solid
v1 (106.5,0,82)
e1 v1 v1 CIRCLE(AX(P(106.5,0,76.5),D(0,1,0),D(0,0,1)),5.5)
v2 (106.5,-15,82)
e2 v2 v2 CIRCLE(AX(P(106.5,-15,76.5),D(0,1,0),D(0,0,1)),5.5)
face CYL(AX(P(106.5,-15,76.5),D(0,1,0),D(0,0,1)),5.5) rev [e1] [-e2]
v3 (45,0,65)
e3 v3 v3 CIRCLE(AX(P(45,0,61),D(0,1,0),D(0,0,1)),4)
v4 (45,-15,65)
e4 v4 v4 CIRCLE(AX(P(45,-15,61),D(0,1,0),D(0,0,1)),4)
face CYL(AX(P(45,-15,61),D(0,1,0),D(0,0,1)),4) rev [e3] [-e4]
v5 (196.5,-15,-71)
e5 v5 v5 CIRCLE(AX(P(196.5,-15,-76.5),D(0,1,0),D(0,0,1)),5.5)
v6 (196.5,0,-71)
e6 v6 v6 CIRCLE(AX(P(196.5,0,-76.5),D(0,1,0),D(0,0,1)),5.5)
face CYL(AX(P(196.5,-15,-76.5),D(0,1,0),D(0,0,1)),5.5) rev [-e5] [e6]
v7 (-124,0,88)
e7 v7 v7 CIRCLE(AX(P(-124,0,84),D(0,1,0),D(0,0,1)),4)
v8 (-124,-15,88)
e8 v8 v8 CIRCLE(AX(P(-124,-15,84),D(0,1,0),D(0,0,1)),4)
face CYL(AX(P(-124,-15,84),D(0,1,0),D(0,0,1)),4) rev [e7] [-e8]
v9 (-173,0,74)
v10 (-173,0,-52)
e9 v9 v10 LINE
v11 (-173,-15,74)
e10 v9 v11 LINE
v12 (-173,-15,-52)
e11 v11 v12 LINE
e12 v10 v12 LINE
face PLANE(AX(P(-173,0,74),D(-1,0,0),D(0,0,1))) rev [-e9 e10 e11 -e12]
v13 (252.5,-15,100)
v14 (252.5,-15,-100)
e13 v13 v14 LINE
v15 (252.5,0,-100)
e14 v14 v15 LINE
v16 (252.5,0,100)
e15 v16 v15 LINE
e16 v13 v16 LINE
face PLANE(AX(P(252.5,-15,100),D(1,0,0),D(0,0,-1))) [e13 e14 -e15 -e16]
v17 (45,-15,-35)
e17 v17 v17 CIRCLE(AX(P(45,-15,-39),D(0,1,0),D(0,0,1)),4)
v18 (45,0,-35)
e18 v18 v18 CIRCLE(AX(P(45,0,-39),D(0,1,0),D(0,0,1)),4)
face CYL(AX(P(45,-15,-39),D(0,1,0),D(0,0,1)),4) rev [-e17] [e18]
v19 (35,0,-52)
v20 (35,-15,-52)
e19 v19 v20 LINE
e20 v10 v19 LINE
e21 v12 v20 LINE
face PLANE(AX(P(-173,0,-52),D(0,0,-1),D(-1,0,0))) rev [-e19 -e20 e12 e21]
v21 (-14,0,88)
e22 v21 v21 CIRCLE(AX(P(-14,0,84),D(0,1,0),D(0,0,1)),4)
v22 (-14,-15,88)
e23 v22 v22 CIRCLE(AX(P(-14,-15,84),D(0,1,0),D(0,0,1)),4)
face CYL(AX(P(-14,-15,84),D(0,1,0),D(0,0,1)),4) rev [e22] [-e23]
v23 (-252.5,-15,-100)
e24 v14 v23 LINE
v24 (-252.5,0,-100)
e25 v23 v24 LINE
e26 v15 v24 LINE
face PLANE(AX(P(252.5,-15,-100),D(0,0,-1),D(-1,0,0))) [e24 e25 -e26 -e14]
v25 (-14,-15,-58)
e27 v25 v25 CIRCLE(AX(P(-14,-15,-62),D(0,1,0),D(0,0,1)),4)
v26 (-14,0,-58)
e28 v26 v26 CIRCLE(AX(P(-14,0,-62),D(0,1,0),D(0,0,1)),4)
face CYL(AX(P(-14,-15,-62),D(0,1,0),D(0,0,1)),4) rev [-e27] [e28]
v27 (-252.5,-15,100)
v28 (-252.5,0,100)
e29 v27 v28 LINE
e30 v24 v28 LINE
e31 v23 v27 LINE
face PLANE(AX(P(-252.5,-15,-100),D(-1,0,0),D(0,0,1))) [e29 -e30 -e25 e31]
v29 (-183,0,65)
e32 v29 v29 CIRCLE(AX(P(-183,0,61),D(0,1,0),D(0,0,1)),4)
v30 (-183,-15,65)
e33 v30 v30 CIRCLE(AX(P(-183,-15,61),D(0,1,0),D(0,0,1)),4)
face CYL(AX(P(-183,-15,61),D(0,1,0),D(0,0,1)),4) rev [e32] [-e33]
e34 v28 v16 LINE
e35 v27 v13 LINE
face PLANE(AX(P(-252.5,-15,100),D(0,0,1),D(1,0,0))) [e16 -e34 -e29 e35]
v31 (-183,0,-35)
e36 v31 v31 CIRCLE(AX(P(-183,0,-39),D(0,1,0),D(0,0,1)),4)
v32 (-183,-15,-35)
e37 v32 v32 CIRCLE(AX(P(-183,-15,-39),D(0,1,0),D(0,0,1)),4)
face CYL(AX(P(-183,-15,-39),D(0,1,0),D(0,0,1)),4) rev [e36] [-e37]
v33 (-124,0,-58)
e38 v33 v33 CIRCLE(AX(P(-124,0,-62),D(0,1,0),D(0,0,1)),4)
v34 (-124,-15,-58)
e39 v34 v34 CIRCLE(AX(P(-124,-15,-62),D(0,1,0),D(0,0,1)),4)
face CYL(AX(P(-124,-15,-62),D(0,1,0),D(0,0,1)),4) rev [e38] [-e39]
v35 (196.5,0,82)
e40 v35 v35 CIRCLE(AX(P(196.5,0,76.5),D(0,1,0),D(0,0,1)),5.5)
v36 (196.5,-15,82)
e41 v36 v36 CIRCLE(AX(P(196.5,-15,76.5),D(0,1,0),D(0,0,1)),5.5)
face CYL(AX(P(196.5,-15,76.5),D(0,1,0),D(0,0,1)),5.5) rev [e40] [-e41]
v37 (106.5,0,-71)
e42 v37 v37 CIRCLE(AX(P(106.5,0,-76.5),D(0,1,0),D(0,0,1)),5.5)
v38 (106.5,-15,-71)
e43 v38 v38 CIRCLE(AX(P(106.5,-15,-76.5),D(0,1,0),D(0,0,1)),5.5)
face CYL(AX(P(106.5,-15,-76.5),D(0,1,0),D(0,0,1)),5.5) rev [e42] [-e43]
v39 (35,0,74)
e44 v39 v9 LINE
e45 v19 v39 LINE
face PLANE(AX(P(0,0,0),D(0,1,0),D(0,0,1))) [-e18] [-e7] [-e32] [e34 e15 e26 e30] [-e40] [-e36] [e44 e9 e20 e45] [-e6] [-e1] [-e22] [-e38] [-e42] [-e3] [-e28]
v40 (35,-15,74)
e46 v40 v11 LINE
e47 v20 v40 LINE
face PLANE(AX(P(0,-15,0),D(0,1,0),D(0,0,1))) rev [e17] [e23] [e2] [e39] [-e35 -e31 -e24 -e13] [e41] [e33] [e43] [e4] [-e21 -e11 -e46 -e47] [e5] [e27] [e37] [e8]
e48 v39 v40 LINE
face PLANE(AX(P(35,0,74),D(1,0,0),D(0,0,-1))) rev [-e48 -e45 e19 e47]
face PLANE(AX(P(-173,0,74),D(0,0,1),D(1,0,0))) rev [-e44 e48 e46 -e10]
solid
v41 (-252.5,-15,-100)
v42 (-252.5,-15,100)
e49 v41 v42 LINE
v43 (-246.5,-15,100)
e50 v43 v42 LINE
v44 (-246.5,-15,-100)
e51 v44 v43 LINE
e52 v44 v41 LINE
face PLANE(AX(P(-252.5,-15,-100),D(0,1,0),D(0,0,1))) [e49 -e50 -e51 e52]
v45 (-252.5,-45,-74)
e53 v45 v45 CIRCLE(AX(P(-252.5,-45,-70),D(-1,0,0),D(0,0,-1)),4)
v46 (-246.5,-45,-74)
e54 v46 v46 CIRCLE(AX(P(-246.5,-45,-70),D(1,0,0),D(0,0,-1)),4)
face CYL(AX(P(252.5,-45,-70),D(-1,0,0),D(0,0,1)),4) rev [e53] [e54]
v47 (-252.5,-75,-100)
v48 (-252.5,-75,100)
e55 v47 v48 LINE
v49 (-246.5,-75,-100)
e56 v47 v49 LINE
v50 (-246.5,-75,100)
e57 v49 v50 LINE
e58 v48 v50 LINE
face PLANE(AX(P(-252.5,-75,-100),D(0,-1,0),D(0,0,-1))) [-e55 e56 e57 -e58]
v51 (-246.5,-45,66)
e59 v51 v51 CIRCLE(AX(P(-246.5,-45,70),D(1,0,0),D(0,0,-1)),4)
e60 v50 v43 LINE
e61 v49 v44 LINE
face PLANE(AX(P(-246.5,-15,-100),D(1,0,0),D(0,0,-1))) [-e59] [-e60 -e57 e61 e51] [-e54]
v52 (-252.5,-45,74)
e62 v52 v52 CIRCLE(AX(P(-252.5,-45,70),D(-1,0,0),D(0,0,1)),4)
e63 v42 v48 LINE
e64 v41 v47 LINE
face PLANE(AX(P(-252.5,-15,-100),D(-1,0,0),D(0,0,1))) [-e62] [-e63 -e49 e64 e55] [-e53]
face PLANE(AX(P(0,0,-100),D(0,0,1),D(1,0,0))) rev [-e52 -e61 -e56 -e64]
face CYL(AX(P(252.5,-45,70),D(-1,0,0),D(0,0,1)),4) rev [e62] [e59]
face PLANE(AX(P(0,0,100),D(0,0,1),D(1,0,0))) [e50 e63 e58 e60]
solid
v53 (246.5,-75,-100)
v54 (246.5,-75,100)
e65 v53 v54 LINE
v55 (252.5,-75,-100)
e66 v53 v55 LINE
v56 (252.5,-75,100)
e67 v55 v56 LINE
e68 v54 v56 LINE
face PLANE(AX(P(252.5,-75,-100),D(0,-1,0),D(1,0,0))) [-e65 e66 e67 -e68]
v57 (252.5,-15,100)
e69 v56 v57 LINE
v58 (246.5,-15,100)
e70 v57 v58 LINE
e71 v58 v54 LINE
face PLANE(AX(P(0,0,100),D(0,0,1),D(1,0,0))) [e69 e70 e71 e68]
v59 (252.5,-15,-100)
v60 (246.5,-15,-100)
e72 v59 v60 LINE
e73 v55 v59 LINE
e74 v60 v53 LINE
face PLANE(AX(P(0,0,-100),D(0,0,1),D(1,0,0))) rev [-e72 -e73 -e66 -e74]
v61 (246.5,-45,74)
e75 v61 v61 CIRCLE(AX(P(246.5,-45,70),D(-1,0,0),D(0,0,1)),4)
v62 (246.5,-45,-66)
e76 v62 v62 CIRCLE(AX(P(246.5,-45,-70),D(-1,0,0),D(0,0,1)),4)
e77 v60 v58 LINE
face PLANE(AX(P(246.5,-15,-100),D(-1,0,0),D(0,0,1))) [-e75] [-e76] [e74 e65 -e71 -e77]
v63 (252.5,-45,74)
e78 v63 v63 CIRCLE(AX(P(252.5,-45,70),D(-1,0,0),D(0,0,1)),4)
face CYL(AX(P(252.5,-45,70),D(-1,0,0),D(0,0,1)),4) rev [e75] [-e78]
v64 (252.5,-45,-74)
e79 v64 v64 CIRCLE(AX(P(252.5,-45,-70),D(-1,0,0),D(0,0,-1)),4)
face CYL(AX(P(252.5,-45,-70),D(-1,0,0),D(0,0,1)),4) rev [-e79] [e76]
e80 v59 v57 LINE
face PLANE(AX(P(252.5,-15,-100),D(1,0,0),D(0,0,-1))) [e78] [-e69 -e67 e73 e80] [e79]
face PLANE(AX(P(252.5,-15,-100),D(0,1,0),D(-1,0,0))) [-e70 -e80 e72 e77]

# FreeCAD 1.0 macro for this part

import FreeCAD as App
import Part
import Sketcher
from FreeCAD import Vector
Q = App.Units.Quantity

doc = App.newDocument("Part")
body = doc.addObject("PartDesign::Body", "Body")

sketch1 = body.newObject("Sketcher::SketchObject", "Sketch")
sketch1.AttachmentSupport = (doc.getObject("XZ_Plane"), [""])
sketch1.MapMode = "FlatFace"
sketch1.addGeometry(Part.LineSegment(Vector(-252.5, -100, 0), Vector(-252.5, 100, 0)), False)
sketch1.addGeometry(Part.LineSegment(Vector(-252.5, 100, 0), Vector(252.5, 100, 0)), False)
sketch1.addGeometry(Part.LineSegment(Vector(252.5, 100, 0), Vector(252.5, -100, 0)), False)
sketch1.addGeometry(Part.LineSegment(Vector(252.5, -100, 0), Vector(-252.5, -100, 0)), False)
sketch1.addGeometry(Part.Circle(Vector(-124, 84, 0), Vector(0, 0, 1), 4), False)
sketch1.addGeometry(Part.Circle(Vector(-183, 61, 0), Vector(0, 0, 1), 4), False)
sketch1.addGeometry(Part.Circle(Vector(-14, 84, 0), Vector(0, 0, 1), 4), False)
sketch1.addGeometry(Part.Circle(Vector(45, 61, 0), Vector(0, 0, 1), 4), False)
sketch1.addGeometry(Part.Circle(Vector(106.5, 76.5, 0), Vector(0, 0, 1), 5.5), False)
sketch1.addGeometry(Part.Circle(Vector(196.5, 76.5, 0), Vector(0, 0, 1), 5.5), False)
sketch1.addGeometry(Part.Circle(Vector(-183, -39, 0), Vector(0, 0, 1), 4), False)
sketch1.addGeometry(Part.Circle(Vector(-124, -62, 0), Vector(0, 0, 1), 4), False)
sketch1.addGeometry(Part.Circle(Vector(-14, -62, 0), Vector(0, 0, 1), 4), False)
sketch1.addGeometry(Part.Circle(Vector(45, -39, 0), Vector(0, 0, 1), 4), False)
sketch1.addGeometry(Part.Circle(Vector(106.5, -76.5, 0), Vector(0, 0, 1), 5.5), False)
sketch1.addGeometry(Part.Circle(Vector(196.5, -76.5, 0), Vector(0, 0, 1), 5.5), False)
sketch1.addConstraint(Sketcher.Constraint("Coincident", 0, 2, 1, 1))
sketch1.addConstraint(Sketcher.Constraint("Coincident", 1, 2, 2, 1))
sketch1.addConstraint(Sketcher.Constraint("Coincident", 2, 2, 3, 1))
sketch1.addConstraint(Sketcher.Constraint("Coincident", 3, 2, 0, 1))
sketch1.addConstraint(Sketcher.Constraint("Vertical", 0))
sketch1.addConstraint(Sketcher.Constraint("Horizontal", 1))
sketch1.addConstraint(Sketcher.Constraint("Vertical", 2))
sketch1.addConstraint(Sketcher.Constraint("Horizontal", 3))
sketch1.addConstraint(Sketcher.Constraint("Equal", 4, 5))
sketch1.addConstraint(Sketcher.Constraint("Equal", 5, 6))
sketch1.addConstraint(Sketcher.Constraint("Equal", 6, 7))
sketch1.addConstraint(Sketcher.Constraint("Equal", 8, 9))
sketch1.addConstraint(Sketcher.Constraint("Equal", 7, 10))
sketch1.addConstraint(Sketcher.Constraint("Equal", 10, 11))
sketch1.addConstraint(Sketcher.Constraint("Equal", 11, 12))
sketch1.addConstraint(Sketcher.Constraint("Equal", 12, 13))
sketch1.addConstraint(Sketcher.Constraint("Equal", 9, 14))
sketch1.addConstraint(Sketcher.Constraint("Equal", 14, 15))
sketch1.addConstraint(Sketcher.Constraint("Symmetric", 0, 2, 2, 2, -1, 1))
sketch1.addConstraint(Sketcher.Constraint("Symmetric", 8, 3, 14, 3, -1))
sketch1.addConstraint(Sketcher.Constraint("Symmetric", 9, 3, 15, 3, -1))
sketch1.addConstraint(Sketcher.Constraint("Horizontal", 4, 3, 6, 3))
sketch1.addConstraint(Sketcher.Constraint("Horizontal", 5, 3, 7, 3))
sketch1.addConstraint(Sketcher.Constraint("Horizontal", 8, 3, 9, 3))
sketch1.addConstraint(Sketcher.Constraint("Horizontal", 11, 3, 12, 3))
sketch1.addConstraint(Sketcher.Constraint("Horizontal", 10, 3, 13, 3))
sketch1.addConstraint(Sketcher.Constraint("Vertical", 5, 3, 10, 3))
sketch1.addConstraint(Sketcher.Constraint("Vertical", 4, 3, 11, 3))
sketch1.addConstraint(Sketcher.Constraint("Vertical", 6, 3, 12, 3))
sketch1.addConstraint(Sketcher.Constraint("Vertical", 7, 3, 13, 3))
sketch1.addConstraint(Sketcher.Constraint("Diameter", 4, Q("8 mm")))
sketch1.addConstraint(Sketcher.Constraint("Diameter", 8, Q("11 mm")))
sketch1.addConstraint(Sketcher.Constraint("DistanceX", 1, 1, 1, 2, Q("505 mm")))
sketch1.addConstraint(Sketcher.Constraint("DistanceY", 0, 1, 0, 2, Q("200 mm")))
sketch1.addConstraint(Sketcher.Constraint("DistanceX", 4, 3, -1, 1, Q("124 mm")))
sketch1.addConstraint(Sketcher.Constraint("DistanceY", -1, 1, 4, 3, Q("84 mm")))
sketch1.addConstraint(Sketcher.Constraint("DistanceX", 5, 3, -1, 1, Q("183 mm")))
sketch1.addConstraint(Sketcher.Constraint("DistanceY", -1, 1, 5, 3, Q("61 mm")))
sketch1.addConstraint(Sketcher.Constraint("DistanceX", 6, 3, -1, 1, Q("14 mm")))
sketch1.addConstraint(Sketcher.Constraint("DistanceX", -1, 1, 7, 3, Q("45 mm")))
sketch1.addConstraint(Sketcher.Constraint("DistanceY", 10, 3, -1, 1, Q("39 mm")))
sketch1.addConstraint(Sketcher.Constraint("DistanceY", 11, 3, -1, 1, Q("62 mm")))
sketch1.addConstraint(Sketcher.Constraint("DistanceX", 8, 3, 9, 3, Q("90 mm")))
sketch1.addConstraint(Sketcher.Constraint("DistanceY", 14, 3, 8, 3, Q("153 mm")))
sketch1.addConstraint(Sketcher.Constraint("DistanceX", 9, 3, 1, 2, Q("56 mm")))
pad1 = body.newObject("PartDesign::Pad", "Pad")
pad1.Profile = sketch1
pad1.Length = 15

sketch2 = body.newObject("Sketcher::SketchObject", "Sketch001")
sketch2.AttachmentSupport = (doc.getObject("XZ_Plane"), [""])
sketch2.MapMode = "FlatFace"
sketch2.AttachmentOffset = App.Placement(Vector(0, 0, 15), App.Rotation())
sketch2.addGeometry(Part.LineSegment(Vector(-173, 74, 0), Vector(-173, -52, 0)), False)
sketch2.addGeometry(Part.LineSegment(Vector(-173, -52, 0), Vector(35, -52, 0)), False)
sketch2.addGeometry(Part.LineSegment(Vector(35, -52, 0), Vector(35, 74, 0)), False)
sketch2.addGeometry(Part.LineSegment(Vector(35, 74, 0), Vector(-173, 74, 0)), False)
sketch2.addConstraint(Sketcher.Constraint("Coincident", 0, 2, 1, 1))
sketch2.addConstraint(Sketcher.Constraint("Coincident", 1, 2, 2, 1))
sketch2.addConstraint(Sketcher.Constraint("Coincident", 2, 2, 3, 1))
sketch2.addConstraint(Sketcher.Constraint("Coincident", 3, 2, 0, 1))
sketch2.addConstraint(Sketcher.Constraint("Vertical", 0))
sketch2.addConstraint(Sketcher.Constraint("Horizontal", 1))
sketch2.addConstraint(Sketcher.Constraint("Vertical", 2))
sketch2.addConstraint(Sketcher.Constraint("Horizontal", 3))
sketch2.addConstraint(Sketcher.Constraint("DistanceX", 1, 1, 1, 2, Q("208 mm")))
sketch2.addConstraint(Sketcher.Constraint("DistanceY", 0, 2, 0, 1, Q("126 mm")))
sketch2.addConstraint(Sketcher.Constraint("DistanceX", 0, 2, -1, 1, Q("173 mm")))
sketch2.addConstraint(Sketcher.Constraint("DistanceY", 0, 2, -1, 1, Q("52 mm")))
pocket1 = body.newObject("PartDesign::Pocket", "Pocket")
pocket1.Profile = sketch2
pocket1.Type = "ThroughAll"
body2 = doc.addObject("PartDesign::Body", "Body001")

sketch3 = body2.newObject("Sketcher::SketchObject", "Sketch002")
sketch3.AttachmentSupport = (doc.getObject("XY_Plane001"), [""])
sketch3.MapMode = "FlatFace"
sketch3.AttachmentOffset = App.Placement(Vector(0, 0, 100), App.Rotation())
sketch3.addGeometry(Part.LineSegment(Vector(-252.5, -15, 0), Vector(-252.5, -75, 0)), False)
sketch3.addGeometry(Part.LineSegment(Vector(-252.5, -75, 0), Vector(-246.5, -75, 0)), False)
sketch3.addGeometry(Part.LineSegment(Vector(-246.5, -75, 0), Vector(-246.5, -15, 0)), False)
sketch3.addGeometry(Part.LineSegment(Vector(-246.5, -15, 0), Vector(-252.5, -15, 0)), False)
sketch3.addConstraint(Sketcher.Constraint("Coincident", 0, 2, 1, 1))
sketch3.addConstraint(Sketcher.Constraint("Coincident", 1, 2, 2, 1))
sketch3.addConstraint(Sketcher.Constraint("Coincident", 2, 2, 3, 1))
sketch3.addConstraint(Sketcher.Constraint("Coincident", 3, 2, 0, 1))
sketch3.addConstraint(Sketcher.Constraint("Vertical", 0))
sketch3.addConstraint(Sketcher.Constraint("Horizontal", 1))
sketch3.addConstraint(Sketcher.Constraint("Vertical", 2))
sketch3.addConstraint(Sketcher.Constraint("Horizontal", 3))
sketch3.addConstraint(Sketcher.Constraint("DistanceX", 1, 1, 1, 2, Q("6 mm")))
sketch3.addConstraint(Sketcher.Constraint("DistanceY", 0, 2, 0, 1, Q("60 mm")))
sketch3.addConstraint(Sketcher.Constraint("DistanceY", 0, 2, -1, 1, Q("75 mm")))
sketch3.addConstraint(Sketcher.Constraint("DistanceX", 0, 2, -1, 1, Q("252.5 mm")))
pad2 = body2.newObject("PartDesign::Pad", "Pad001")
pad2.Profile = sketch3
pad2.Length = 200
pad2.Reversed = True
body3 = doc.addObject("PartDesign::Body", "Body002")

sketch4 = body3.newObject("Sketcher::SketchObject", "Sketch003")
sketch4.AttachmentSupport = (doc.getObject("XY_Plane002"), [""])
sketch4.MapMode = "FlatFace"
sketch4.AttachmentOffset = App.Placement(Vector(0, 0, 100), App.Rotation())
sketch4.addGeometry(Part.LineSegment(Vector(246.5, -15, 0), Vector(246.5, -75, 0)), False)
sketch4.addGeometry(Part.LineSegment(Vector(246.5, -75, 0), Vector(252.5, -75, 0)), False)
sketch4.addGeometry(Part.LineSegment(Vector(252.5, -75, 0), Vector(252.5, -15, 0)), False)
sketch4.addGeometry(Part.LineSegment(Vector(252.5, -15, 0), Vector(246.5, -15, 0)), False)
sketch4.addConstraint(Sketcher.Constraint("Coincident", 0, 2, 1, 1))
sketch4.addConstraint(Sketcher.Constraint("Coincident", 1, 2, 2, 1))
sketch4.addConstraint(Sketcher.Constraint("Coincident", 2, 2, 3, 1))
sketch4.addConstraint(Sketcher.Constraint("Coincident", 3, 2, 0, 1))
sketch4.addConstraint(Sketcher.Constraint("Vertical", 0))
sketch4.addConstraint(Sketcher.Constraint("Horizontal", 1))
sketch4.addConstraint(Sketcher.Constraint("Vertical", 2))
sketch4.addConstraint(Sketcher.Constraint("Horizontal", 3))
sketch4.addConstraint(Sketcher.Constraint("DistanceX", 1, 1, 1, 2, Q("6 mm")))
sketch4.addConstraint(Sketcher.Constraint("DistanceY", 0, 2, 0, 1, Q("60 mm")))
sketch4.addConstraint(Sketcher.Constraint("DistanceY", 0, 2, -1, 1, Q("75 mm")))
sketch4.addConstraint(Sketcher.Constraint("DistanceX", -1, 1, 0, 2, Q("246.5 mm")))
pad3 = body3.newObject("PartDesign::Pad", "Pad002")
pad3.Profile = sketch4
pad3.Length = 200
pad3.Reversed = True
body4 = doc.addObject("PartDesign::Body", "Body003")
body4.AllowCompound = True

sketch5 = body4.newObject("Sketcher::SketchObject", "Sketch004")
sketch5.AttachmentSupport = (doc.getObject("YZ_Plane003"), [""])
sketch5.MapMode = "FlatFace"
sketch5.AttachmentOffset = App.Placement(Vector(0, 0, -252.5), App.Rotation())
sketch5.addGeometry(Part.Circle(Vector(-45, 70, 0), Vector(0, 0, 1), 4), False)
sketch5.addGeometry(Part.Circle(Vector(-45, -70, 0), Vector(0, 0, 1), 4), False)
sketch5.addConstraint(Sketcher.Constraint("Equal", 0, 1))
sketch5.addConstraint(Sketcher.Constraint("Symmetric", 0, 3, 1, 3, -1))
sketch5.addConstraint(Sketcher.Constraint("Diameter", 0, Q("8 mm")))
sketch5.addConstraint(Sketcher.Constraint("DistanceX", 0, 3, -1, 1, Q("45 mm")))
sketch5.addConstraint(Sketcher.Constraint("DistanceY", -1, 1, 0, 3, Q("70 mm")))
pad4 = body4.newObject("PartDesign::Pad", "Pad003")
pad4.Profile = sketch5
pad4.Length = 521.240329
doc.recompute()

body5 = doc.addObject("PartDesign::Body", "Body004")
body5.BaseFeature = body4
boolean = body2.newObject("PartDesign::Boolean", "Boolean")
boolean.Type = "Cut"
boolean.addObjects([body5])
doc.recompute()

boolean2 = body3.newObject("PartDesign::Boolean", "Boolean001")
boolean2.Type = "Cut"
boolean2.addObjects([body4])

doc.recompute()
